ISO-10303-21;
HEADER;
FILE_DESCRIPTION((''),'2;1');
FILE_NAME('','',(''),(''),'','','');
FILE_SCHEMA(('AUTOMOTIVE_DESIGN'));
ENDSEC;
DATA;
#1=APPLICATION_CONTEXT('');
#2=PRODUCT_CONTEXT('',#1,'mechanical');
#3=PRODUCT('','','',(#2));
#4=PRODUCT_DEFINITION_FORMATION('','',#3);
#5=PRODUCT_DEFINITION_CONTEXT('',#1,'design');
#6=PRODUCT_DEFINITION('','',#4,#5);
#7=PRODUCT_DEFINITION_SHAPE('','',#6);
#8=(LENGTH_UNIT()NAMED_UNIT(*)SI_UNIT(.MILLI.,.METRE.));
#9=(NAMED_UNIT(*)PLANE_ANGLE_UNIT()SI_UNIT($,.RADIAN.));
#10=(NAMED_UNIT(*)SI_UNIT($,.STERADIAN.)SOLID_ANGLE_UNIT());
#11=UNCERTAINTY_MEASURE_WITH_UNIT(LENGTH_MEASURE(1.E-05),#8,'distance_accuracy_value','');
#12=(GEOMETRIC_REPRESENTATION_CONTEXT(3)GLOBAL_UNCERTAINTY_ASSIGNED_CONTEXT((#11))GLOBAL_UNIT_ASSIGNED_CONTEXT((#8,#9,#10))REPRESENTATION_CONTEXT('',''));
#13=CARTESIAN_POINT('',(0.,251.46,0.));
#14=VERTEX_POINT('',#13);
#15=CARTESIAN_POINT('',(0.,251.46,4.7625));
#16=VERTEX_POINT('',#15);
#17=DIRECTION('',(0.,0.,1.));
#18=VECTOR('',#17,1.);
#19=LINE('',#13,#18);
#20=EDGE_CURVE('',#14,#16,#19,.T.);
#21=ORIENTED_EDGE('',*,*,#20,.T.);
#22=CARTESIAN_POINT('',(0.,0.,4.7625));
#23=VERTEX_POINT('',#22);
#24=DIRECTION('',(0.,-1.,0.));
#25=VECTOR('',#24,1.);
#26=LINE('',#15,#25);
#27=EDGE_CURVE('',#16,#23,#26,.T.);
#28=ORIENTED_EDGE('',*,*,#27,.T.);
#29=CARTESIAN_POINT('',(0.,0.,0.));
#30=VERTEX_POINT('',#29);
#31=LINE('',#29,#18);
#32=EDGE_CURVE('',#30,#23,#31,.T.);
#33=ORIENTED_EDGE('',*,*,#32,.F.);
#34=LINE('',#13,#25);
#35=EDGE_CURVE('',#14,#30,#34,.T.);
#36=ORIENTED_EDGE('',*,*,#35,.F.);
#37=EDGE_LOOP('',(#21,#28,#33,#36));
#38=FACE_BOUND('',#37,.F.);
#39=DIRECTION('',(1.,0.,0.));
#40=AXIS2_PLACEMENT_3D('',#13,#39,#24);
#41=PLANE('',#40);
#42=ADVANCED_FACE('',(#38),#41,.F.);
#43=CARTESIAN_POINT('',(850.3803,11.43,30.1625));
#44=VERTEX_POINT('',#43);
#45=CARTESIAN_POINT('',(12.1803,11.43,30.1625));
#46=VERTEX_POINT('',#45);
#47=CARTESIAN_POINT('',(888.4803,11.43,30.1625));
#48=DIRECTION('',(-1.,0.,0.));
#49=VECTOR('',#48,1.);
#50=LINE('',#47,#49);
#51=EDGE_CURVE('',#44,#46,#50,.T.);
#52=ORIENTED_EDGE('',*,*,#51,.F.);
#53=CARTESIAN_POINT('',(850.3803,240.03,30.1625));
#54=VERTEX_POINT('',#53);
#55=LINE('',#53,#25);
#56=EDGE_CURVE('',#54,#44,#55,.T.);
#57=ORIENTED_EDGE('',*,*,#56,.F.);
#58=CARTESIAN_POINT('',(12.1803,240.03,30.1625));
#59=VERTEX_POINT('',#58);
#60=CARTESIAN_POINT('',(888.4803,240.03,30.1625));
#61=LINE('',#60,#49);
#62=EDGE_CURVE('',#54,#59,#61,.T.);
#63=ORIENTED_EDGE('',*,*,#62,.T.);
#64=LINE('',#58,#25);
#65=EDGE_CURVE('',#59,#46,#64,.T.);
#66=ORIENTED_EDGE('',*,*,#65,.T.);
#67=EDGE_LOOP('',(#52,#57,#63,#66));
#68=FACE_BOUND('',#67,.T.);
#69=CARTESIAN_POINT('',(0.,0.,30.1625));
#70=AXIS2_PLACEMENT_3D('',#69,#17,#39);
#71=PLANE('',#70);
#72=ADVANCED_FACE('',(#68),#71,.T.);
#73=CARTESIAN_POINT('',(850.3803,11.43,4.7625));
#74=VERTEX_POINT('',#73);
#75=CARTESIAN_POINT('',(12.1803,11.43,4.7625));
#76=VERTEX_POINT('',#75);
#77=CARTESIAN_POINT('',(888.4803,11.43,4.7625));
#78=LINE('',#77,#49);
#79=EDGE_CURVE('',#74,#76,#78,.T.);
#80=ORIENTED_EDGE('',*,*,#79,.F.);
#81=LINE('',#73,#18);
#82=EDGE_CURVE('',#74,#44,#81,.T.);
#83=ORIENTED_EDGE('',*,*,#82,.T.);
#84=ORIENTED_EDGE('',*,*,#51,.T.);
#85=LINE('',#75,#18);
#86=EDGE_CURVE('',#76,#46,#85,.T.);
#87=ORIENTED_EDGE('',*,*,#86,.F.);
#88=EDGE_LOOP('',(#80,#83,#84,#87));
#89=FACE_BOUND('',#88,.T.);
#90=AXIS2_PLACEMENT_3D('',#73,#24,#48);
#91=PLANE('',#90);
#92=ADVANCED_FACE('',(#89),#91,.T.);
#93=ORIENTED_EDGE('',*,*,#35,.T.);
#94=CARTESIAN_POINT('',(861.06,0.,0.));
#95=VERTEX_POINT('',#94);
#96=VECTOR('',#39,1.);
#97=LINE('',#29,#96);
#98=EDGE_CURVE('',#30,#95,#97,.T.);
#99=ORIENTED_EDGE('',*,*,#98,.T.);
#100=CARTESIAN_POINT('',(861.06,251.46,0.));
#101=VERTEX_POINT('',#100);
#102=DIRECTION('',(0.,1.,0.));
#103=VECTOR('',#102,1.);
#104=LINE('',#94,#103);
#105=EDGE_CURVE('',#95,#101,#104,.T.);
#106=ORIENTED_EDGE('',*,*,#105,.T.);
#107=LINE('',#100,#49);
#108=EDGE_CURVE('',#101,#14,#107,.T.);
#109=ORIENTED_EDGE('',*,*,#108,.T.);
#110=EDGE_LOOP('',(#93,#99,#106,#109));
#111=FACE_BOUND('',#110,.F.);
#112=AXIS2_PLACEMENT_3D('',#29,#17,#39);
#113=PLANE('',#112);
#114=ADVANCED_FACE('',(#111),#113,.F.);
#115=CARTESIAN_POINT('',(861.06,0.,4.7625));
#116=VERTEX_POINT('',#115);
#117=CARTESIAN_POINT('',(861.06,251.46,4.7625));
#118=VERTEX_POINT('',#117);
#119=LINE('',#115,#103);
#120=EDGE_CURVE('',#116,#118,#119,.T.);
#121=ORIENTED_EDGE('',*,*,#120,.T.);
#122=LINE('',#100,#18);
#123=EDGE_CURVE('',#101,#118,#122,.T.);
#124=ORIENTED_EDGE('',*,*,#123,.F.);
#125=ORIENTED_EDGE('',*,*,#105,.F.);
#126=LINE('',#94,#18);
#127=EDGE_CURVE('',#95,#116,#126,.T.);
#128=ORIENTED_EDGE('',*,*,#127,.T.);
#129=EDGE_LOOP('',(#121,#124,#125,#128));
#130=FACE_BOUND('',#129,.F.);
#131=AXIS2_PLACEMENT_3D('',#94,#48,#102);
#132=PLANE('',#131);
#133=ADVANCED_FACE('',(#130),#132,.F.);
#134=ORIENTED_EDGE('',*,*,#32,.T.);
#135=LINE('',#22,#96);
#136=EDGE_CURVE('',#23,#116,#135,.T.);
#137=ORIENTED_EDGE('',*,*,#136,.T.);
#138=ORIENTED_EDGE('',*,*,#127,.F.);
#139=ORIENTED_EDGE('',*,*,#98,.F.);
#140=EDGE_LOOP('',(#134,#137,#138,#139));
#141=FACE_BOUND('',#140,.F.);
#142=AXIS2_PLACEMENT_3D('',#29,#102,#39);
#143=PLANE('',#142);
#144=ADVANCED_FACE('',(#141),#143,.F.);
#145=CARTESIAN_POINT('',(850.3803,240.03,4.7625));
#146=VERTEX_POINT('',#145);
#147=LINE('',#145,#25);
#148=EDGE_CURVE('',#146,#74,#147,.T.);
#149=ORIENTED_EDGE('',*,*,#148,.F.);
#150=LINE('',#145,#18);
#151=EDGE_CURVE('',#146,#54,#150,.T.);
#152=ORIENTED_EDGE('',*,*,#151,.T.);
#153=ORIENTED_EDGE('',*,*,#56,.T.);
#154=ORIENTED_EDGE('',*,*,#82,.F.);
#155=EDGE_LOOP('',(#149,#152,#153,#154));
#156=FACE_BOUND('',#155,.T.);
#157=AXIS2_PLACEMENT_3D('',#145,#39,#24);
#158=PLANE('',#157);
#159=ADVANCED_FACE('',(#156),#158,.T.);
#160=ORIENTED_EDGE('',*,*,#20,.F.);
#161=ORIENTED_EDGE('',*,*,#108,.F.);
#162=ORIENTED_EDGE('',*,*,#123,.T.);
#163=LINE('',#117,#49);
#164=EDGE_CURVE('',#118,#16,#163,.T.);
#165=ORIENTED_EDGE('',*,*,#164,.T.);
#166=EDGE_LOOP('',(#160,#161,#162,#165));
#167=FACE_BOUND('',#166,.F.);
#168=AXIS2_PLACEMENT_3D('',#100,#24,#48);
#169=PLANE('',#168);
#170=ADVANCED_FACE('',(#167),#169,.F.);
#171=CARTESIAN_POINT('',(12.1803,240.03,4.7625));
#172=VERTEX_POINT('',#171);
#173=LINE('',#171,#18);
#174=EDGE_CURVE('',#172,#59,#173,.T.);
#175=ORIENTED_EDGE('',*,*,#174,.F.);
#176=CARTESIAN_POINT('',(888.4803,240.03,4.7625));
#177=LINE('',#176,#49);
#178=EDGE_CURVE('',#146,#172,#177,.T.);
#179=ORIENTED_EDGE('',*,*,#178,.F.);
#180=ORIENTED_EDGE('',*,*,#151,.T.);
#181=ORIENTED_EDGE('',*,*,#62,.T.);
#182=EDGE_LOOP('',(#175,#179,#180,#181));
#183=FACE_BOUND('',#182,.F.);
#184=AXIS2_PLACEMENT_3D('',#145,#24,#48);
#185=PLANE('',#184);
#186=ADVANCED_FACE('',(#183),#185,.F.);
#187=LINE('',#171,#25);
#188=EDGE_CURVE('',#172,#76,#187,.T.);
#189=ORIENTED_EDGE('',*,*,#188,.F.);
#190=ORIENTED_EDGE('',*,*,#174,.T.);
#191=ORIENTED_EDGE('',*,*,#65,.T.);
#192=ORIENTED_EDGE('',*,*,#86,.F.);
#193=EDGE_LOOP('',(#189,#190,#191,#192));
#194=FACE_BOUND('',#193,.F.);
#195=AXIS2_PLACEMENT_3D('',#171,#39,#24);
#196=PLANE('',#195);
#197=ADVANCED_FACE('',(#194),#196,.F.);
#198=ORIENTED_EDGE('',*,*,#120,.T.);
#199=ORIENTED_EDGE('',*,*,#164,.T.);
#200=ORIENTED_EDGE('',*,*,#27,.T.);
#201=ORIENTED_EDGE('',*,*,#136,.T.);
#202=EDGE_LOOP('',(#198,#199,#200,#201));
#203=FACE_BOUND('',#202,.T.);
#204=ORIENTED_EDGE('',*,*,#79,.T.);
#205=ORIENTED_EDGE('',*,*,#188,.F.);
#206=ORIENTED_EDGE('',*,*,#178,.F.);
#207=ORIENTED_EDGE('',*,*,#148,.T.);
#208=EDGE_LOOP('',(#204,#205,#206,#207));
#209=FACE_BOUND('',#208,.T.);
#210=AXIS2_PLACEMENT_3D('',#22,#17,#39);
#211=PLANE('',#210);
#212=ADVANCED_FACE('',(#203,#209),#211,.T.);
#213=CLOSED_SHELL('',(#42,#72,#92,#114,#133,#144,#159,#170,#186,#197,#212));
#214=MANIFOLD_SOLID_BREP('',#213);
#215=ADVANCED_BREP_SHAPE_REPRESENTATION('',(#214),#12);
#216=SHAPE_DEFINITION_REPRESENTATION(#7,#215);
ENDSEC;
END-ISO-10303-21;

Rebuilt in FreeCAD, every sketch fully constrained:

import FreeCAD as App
import Part
import Sketcher
Q = App.Units.Quantity

doc = App.newDocument("Part")
body = doc.addObject("PartDesign::Body", "Body")

# Sketch on XY plane
sketch1 = body.newObject("Sketcher::SketchObject", "Sketch")
sketch1.AttachmentSupport = (doc.getObject("XY_Plane"), [""])
sketch1.MapMode = "FlatFace"
sketch1.addGeometry(Part.LineSegment(App.Vector(0, 251, 0), App.Vector(0, 0, 0)), False)
sketch1.addGeometry(Part.LineSegment(App.Vector(0, 0, 0), App.Vector(861, 0, 0)), False)
sketch1.addGeometry(Part.LineSegment(App.Vector(861, 0, 0), App.Vector(861, 251, 0)), False)
sketch1.addGeometry(Part.LineSegment(App.Vector(861, 251, 0), App.Vector(0, 251, 0)), False)
sketch1.addConstraint(Sketcher.Constraint("Coincident", 0, 2, 1, 1))
sketch1.addConstraint(Sketcher.Constraint("Coincident", 1, 2, 2, 1))
sketch1.addConstraint(Sketcher.Constraint("Coincident", 2, 2, 3, 1))
sketch1.addConstraint(Sketcher.Constraint("Coincident", 3, 2, 0, 1))
sketch1.addConstraint(Sketcher.Constraint("Vertical", 0))
sketch1.addConstraint(Sketcher.Constraint("Horizontal", 1))
sketch1.addConstraint(Sketcher.Constraint("Vertical", 2))
sketch1.addConstraint(Sketcher.Constraint("Horizontal", 3))
sketch1.addConstraint(Sketcher.Constraint("Coincident", 0, 2, -1, 1))
sketch1.addConstraint(Sketcher.Constraint("DistanceX", 1, 1, 1, 2, Q("33.9 in")))
sketch1.addConstraint(Sketcher.Constraint("DistanceY", 0, 2, 0, 1, Q("9.9 in")))
pad1 = body.newObject("PartDesign::Pad", "Pad")
pad1.Profile = sketch1
pad1.Length = Q("0.1875 in")

# Sketch on XY plane
sketch2 = body.newObject("Sketcher::SketchObject", "Sketch001")
sketch2.AttachmentSupport = (doc.getObject("XY_Plane"), [""])
sketch2.MapMode = "FlatFace"
sketch2.AttachmentOffset = App.Placement(App.Vector(0, 0, 0.1875 * 25.4), App.Rotation())
sketch2.addGeometry(Part.LineSegment(App.Vector(12, 11, 0), App.Vector(850, 11, 0)), False)
sketch2.addGeometry(Part.LineSegment(App.Vector(850, 11, 0), App.Vector(850, 240, 0)), False)
sketch2.addGeometry(Part.LineSegment(App.Vector(850, 240, 0), App.Vector(12, 240, 0)), False)
sketch2.addGeometry(Part.LineSegment(App.Vector(12, 240, 0), App.Vector(12, 11, 0)), False)
sketch2.addConstraint(Sketcher.Constraint("Coincident", 0, 2, 1, 1))
sketch2.addConstraint(Sketcher.Constraint("Coincident", 1, 2, 2, 1))
sketch2.addConstraint(Sketcher.Constraint("Coincident", 2, 2, 3, 1))
sketch2.addConstraint(Sketcher.Constraint("Coincident", 3, 2, 0, 1))
sketch2.addConstraint(Sketcher.Constraint("Horizontal", 0))
sketch2.addConstraint(Sketcher.Constraint("Vertical", 1))
sketch2.addConstraint(Sketcher.Constraint("Horizontal", 2))
sketch2.addConstraint(Sketcher.Constraint("Vertical", 3))
sketch2.addConstraint(Sketcher.Constraint("DistanceX", 0, 1, 0, 2, Q("33 in")))
sketch2.addConstraint(Sketcher.Constraint("DistanceY", 1, 1, 1, 2, Q("9 in")))
sketch2.addConstraint(Sketcher.Constraint("DistanceY", -1, 1, 0, 2, Q("0.45 in")))
sketch2.addConstraint(Sketcher.Constraint("DistanceX", -1, 1, 0, 2, Q("850.3803 mm")))
pad2 = body.newObject("PartDesign::Pad", "Pad001")
pad2.Profile = sketch2
pad2.Length = Q("1 in")

doc.recompute()
